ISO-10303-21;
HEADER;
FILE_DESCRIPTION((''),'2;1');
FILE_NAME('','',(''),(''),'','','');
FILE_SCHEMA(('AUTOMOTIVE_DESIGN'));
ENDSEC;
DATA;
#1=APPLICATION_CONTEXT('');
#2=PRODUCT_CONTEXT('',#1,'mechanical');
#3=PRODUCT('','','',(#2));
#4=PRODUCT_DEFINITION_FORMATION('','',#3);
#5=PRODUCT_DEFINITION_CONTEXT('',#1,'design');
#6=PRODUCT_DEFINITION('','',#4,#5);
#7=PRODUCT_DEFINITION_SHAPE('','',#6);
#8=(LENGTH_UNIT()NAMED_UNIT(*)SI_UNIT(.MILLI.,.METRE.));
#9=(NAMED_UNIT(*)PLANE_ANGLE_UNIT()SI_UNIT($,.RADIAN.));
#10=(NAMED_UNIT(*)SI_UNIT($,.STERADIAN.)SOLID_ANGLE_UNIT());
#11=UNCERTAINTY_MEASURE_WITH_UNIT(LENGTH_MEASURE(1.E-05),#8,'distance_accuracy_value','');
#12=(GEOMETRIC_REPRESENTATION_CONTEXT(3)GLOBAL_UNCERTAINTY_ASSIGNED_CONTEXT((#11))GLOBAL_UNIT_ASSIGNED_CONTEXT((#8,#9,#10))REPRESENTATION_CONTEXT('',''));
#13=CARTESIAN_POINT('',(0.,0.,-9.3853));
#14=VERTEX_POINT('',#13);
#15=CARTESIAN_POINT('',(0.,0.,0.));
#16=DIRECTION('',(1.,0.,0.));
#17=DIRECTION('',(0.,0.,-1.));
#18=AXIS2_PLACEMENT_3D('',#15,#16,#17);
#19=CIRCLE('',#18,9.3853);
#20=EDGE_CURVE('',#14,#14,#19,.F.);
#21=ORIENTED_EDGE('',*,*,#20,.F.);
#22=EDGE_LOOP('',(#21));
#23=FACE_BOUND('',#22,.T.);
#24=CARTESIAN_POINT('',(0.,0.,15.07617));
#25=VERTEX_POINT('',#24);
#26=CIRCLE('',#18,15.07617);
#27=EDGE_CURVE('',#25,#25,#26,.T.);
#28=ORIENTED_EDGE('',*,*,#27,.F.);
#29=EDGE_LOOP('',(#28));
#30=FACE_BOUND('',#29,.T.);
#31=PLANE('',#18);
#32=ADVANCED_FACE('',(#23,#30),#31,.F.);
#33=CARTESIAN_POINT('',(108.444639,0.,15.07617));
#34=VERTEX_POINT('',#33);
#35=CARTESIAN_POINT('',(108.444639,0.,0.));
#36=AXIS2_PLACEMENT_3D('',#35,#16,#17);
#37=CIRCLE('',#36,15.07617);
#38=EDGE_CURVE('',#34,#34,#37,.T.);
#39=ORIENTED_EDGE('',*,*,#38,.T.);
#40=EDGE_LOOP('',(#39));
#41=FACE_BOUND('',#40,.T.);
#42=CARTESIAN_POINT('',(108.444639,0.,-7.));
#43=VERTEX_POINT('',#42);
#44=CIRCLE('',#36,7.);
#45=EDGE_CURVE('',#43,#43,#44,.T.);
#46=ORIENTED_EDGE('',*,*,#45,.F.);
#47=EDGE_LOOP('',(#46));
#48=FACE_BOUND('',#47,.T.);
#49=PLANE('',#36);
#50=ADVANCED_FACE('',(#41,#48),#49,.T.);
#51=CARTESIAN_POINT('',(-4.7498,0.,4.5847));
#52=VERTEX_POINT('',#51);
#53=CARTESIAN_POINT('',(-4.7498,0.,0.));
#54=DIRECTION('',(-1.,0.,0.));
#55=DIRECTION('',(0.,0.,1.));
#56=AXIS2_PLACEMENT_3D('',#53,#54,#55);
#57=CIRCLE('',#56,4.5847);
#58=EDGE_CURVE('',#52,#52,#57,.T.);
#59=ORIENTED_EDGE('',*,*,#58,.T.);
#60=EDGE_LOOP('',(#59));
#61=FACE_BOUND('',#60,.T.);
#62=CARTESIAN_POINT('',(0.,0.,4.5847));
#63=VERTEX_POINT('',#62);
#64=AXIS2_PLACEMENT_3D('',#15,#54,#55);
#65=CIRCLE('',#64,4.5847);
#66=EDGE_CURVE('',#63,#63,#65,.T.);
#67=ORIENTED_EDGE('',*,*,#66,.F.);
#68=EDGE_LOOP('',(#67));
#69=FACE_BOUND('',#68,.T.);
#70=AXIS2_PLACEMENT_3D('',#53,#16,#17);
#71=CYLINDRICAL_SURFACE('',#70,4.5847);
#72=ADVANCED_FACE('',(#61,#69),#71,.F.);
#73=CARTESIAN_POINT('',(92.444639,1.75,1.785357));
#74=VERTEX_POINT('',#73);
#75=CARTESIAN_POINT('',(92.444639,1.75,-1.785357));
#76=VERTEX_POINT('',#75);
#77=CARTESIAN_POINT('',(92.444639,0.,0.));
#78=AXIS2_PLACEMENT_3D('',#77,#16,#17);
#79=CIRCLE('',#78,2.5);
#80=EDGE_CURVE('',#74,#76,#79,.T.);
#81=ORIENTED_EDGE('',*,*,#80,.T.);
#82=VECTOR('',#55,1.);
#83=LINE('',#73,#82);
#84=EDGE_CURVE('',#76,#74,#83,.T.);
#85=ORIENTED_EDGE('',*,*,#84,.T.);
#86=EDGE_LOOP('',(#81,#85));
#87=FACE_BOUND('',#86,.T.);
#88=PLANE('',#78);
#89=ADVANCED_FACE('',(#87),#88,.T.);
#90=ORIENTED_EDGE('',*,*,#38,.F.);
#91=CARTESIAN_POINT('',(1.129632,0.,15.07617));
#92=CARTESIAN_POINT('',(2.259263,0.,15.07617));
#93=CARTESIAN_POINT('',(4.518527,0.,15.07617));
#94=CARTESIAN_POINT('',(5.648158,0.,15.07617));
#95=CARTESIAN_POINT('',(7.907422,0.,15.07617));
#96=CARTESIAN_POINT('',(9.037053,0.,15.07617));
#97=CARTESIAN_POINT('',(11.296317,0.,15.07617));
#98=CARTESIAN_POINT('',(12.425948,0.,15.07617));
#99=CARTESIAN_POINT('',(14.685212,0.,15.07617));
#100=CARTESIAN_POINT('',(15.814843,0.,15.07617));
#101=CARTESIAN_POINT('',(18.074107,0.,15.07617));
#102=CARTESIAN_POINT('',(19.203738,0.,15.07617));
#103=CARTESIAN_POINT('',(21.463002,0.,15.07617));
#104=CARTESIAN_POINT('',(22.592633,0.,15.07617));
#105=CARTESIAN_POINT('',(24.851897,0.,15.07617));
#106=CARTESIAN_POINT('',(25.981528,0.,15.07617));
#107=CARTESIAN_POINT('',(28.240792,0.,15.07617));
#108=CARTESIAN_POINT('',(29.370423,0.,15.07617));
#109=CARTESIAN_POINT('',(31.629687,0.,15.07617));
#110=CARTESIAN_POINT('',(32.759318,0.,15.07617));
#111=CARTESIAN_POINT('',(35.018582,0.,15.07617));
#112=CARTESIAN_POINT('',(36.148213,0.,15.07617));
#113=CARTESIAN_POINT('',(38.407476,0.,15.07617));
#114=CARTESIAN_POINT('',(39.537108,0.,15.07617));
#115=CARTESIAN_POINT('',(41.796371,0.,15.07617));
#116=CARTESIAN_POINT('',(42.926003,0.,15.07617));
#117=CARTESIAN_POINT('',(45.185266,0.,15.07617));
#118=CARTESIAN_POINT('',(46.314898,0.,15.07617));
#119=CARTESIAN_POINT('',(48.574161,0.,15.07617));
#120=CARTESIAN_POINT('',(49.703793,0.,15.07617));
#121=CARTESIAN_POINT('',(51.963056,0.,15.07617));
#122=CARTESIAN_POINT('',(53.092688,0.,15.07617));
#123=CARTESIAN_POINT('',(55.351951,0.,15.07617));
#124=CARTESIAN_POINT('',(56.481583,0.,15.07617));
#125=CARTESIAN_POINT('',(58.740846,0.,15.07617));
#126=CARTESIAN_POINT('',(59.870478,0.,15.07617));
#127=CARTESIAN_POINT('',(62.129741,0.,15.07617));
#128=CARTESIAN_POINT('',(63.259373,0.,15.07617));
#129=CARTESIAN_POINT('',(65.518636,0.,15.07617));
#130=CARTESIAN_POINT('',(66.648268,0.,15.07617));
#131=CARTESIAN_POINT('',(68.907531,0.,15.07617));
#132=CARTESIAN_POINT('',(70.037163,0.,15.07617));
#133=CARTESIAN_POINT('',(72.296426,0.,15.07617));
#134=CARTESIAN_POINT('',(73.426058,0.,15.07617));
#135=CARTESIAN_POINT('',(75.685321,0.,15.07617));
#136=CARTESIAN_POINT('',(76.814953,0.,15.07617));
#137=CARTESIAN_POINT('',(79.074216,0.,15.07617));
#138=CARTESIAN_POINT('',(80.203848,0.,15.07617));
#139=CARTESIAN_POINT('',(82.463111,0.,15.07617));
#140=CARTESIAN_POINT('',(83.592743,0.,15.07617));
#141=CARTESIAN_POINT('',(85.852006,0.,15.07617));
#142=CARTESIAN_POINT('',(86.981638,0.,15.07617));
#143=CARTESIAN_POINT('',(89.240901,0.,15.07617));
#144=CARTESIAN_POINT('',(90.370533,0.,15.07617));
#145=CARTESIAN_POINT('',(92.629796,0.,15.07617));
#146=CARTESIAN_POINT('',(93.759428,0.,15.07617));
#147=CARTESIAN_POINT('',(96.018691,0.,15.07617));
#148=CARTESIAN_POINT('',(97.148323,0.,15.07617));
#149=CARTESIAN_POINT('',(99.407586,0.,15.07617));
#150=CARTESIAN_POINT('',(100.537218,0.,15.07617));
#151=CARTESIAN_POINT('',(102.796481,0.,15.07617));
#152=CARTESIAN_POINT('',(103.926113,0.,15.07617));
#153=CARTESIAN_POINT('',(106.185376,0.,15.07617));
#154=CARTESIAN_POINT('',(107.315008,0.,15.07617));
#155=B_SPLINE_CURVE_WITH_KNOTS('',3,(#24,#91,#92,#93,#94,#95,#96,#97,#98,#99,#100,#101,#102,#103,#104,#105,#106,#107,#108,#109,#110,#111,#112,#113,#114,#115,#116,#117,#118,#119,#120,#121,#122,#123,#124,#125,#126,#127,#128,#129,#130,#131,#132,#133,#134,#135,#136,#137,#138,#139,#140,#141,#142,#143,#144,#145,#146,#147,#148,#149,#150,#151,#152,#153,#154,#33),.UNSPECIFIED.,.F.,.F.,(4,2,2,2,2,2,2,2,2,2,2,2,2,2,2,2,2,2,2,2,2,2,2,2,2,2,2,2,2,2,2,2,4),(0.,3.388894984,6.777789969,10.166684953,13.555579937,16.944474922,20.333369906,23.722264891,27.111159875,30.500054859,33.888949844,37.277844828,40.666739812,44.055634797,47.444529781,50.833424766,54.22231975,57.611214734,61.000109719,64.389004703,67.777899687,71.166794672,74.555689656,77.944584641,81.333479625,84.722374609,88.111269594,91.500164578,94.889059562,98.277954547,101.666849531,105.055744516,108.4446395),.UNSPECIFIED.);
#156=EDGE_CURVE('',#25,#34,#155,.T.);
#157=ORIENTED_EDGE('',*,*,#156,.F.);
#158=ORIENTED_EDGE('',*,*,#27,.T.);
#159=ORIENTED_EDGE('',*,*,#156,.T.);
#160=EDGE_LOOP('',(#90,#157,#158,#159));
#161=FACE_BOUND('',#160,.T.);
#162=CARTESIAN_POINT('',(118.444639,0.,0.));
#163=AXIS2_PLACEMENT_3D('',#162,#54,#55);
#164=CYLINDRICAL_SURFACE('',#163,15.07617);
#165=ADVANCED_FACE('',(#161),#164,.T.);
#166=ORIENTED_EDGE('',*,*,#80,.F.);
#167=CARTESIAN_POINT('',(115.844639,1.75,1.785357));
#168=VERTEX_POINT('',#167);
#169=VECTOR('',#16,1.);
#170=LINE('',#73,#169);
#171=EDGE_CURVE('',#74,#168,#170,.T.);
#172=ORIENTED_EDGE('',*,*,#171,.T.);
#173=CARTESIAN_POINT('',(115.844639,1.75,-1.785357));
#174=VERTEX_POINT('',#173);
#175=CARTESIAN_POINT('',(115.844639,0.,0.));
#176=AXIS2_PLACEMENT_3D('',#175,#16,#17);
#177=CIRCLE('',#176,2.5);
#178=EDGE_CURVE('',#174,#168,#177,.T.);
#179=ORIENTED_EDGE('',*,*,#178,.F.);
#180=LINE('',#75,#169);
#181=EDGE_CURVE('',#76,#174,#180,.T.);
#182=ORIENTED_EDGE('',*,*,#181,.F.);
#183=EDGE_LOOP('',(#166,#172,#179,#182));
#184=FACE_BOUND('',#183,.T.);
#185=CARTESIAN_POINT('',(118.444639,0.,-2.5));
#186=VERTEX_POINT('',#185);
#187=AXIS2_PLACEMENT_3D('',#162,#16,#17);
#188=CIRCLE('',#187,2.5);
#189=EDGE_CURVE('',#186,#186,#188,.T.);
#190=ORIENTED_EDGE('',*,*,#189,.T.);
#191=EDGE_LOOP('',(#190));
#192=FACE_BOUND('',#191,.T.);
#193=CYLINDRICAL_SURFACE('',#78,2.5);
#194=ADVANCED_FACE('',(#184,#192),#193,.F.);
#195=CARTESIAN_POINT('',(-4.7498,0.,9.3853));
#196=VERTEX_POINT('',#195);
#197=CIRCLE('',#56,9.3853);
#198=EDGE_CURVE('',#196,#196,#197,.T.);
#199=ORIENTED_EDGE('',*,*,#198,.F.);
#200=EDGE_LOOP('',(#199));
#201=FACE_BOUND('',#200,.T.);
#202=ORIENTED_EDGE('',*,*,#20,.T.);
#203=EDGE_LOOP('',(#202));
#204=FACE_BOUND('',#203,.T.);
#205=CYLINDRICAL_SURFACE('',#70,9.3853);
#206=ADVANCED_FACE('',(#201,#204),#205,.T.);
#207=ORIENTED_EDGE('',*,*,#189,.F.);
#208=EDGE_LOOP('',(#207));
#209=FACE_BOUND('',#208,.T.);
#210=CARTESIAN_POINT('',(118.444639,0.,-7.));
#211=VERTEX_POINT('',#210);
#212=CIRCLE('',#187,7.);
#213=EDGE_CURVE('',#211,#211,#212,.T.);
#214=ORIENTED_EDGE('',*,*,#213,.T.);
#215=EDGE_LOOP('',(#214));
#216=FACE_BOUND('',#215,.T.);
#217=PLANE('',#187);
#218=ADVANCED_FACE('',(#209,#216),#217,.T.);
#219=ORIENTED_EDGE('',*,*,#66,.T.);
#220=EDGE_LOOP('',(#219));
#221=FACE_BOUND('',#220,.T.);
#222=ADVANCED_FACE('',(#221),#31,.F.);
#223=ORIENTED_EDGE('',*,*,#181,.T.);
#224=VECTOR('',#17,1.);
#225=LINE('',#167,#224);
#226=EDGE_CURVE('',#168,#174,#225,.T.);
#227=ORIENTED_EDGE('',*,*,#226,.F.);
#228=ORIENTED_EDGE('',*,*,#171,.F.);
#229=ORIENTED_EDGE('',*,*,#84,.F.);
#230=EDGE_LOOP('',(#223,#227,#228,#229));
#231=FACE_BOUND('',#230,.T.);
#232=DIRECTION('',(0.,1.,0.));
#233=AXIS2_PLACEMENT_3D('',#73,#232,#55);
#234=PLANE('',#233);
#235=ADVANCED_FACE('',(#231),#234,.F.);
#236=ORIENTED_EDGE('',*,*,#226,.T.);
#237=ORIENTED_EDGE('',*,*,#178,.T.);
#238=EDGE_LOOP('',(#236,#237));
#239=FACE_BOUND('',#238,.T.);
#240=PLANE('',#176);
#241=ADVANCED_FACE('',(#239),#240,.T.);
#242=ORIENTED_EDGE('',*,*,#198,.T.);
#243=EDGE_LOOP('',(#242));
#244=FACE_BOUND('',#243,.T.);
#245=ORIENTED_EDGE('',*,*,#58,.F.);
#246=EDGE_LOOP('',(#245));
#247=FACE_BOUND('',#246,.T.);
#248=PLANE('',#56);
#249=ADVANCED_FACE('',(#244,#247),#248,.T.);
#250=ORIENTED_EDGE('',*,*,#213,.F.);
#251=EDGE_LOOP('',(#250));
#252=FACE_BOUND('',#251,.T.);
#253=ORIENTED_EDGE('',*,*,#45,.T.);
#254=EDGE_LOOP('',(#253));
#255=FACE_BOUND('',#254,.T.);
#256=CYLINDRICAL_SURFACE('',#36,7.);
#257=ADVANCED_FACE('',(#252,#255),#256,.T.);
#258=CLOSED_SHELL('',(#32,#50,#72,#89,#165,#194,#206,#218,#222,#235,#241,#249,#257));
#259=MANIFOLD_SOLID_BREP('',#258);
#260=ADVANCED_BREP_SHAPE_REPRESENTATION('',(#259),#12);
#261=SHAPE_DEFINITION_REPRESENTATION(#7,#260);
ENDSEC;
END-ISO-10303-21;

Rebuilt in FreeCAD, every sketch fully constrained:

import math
import FreeCAD as App
import Part
import Sketcher
Q = App.Units.Quantity

doc = App.newDocument("Part")
body = doc.addObject("PartDesign::Body", "Body")

sketch1 = body.newObject("Sketcher::SketchObject", "Sketch")
sketch1.AttachmentSupport = (doc.getObject("YZ_Plane"), [""])
sketch1.MapMode = "FlatFace"
sketch1.addGeometry(Part.Circle(App.Vector(0, 0, 0), App.Vector(0, 0, 1), 15), False)
sketch1.addConstraint([
    Sketcher.Constraint("Coincident", 0, 3, -1, 1),
    Sketcher.Constraint("Diameter", 0, Q("30.15234 mm")),
])
pad1 = body.newObject("PartDesign::Pad", "Pad")
pad1.Profile = sketch1
pad1.Length = 118.444639

sketch2 = body.newObject("Sketcher::SketchObject", "Sketch001")
sketch2.AttachmentSupport = (doc.getObject("YZ_Plane"), [""])
sketch2.MapMode = "FlatFace"
sketch2.addGeometry([
    Part.Circle(App.Vector(0, 0, 0), App.Vector(0, 0, 1), 9.4),
    Part.Circle(App.Vector(0, 0, 0), App.Vector(0, 0, 1), 4.6),
], False)
sketch2.addConstraint([
    Sketcher.Constraint("Coincident", 0, 3, -1, 1),
    Sketcher.Constraint("Coincident", 1, 3, -1, 1),
    Sketcher.Constraint("Diameter", 0, Q("18.7706 mm")),
    Sketcher.Constraint("Diameter", 1, Q("9.1694 mm")),
])
pad2 = body.newObject("PartDesign::Pad", "Pad001")
pad2.Profile = sketch2
pad2.Length = 4.7498
pad2.Reversed = True

sketch3 = body.newObject("Sketcher::SketchObject", "Sketch002")
sketch3.AttachmentSupport = (doc.getObject("YZ_Plane"), [""])
sketch3.MapMode = "FlatFace"
sketch3.AttachmentOffset = App.Placement(App.Vector(0, 0, 118.444639), App.Rotation())
sketch3.addGeometry([
    Part.LineSegment(App.Vector(1.8, -1.8, 0), App.Vector(1.8, 1.8, 0)),
    Part.ArcOfCircle(Part.Circle(App.Vector(0, 0, 0), App.Vector(0, 0, 1), 2.5), math.radians(46), math.radians(314)),
], False)
sketch3.addConstraint([
    Sketcher.Constraint("Coincident", 0, 1, 1, 2),
    Sketcher.Constraint("Coincident", 1, 1, 0, 2),
    Sketcher.Constraint("Vertical", 0),
    Sketcher.Constraint("Coincident", 1, 3, -1, 1),
    Sketcher.Constraint("Radius", 1, Q("2.5 mm")),
    Sketcher.Constraint("DistanceX", -1, 1, 0, 1, Q("1.75 mm")),
])
pocket1 = body.newObject("PartDesign::Pocket", "Pocket")
pocket1.Profile = sketch3
pocket1.Length = 26

sketch4 = body.newObject("Sketcher::SketchObject", "Sketch003")
sketch4.AttachmentSupport = (doc.getObject("YZ_Plane"), [""])
sketch4.MapMode = "FlatFace"
sketch4.AttachmentOffset = App.Placement(App.Vector(0, 0, 118.444639), App.Rotation())
sketch4.addGeometry(Part.Circle(App.Vector(0, 0, 0), App.Vector(0, 0, 1), 2.5), False)
sketch4.addConstraint([
    Sketcher.Constraint("Coincident", 0, 3, -1, 1),
    Sketcher.Constraint("Diameter", 0, Q("5 mm")),
])
pocket2 = body.newObject("PartDesign::Pocket", "Pocket001")
pocket2.Profile = sketch4
pocket2.Length = 2.6

sketch5 = body.newObject("Sketcher::SketchObject", "Sketch004")
sketch5.AttachmentSupport = (doc.getObject("YZ_Plane"), [""])
sketch5.MapMode = "FlatFace"
sketch5.AttachmentOffset = App.Placement(App.Vector(0, 0, 108.444639), App.Rotation())
sketch5.addGeometry([
    Part.Circle(App.Vector(0, 0, 0), App.Vector(0, 0, 1), 15),
    Part.Circle(App.Vector(0, 0, 0), App.Vector(0, 0, 1), 7),
], False)
sketch5.addConstraint([
    Sketcher.Constraint("Coincident", 0, 3, -1, 1),
    Sketcher.Constraint("Coincident", 1, 3, -1, 1),
    Sketcher.Constraint("Diameter", 1, Q("14 mm")),
    Sketcher.Constraint("Diameter", 0, Q("30.15234 mm")),
])
pocket3 = body.newObject("PartDesign::Pocket", "Pocket002")
pocket3.Profile = sketch5
pocket3.Length = 10
pocket3.Reversed = True

doc.recompute()
